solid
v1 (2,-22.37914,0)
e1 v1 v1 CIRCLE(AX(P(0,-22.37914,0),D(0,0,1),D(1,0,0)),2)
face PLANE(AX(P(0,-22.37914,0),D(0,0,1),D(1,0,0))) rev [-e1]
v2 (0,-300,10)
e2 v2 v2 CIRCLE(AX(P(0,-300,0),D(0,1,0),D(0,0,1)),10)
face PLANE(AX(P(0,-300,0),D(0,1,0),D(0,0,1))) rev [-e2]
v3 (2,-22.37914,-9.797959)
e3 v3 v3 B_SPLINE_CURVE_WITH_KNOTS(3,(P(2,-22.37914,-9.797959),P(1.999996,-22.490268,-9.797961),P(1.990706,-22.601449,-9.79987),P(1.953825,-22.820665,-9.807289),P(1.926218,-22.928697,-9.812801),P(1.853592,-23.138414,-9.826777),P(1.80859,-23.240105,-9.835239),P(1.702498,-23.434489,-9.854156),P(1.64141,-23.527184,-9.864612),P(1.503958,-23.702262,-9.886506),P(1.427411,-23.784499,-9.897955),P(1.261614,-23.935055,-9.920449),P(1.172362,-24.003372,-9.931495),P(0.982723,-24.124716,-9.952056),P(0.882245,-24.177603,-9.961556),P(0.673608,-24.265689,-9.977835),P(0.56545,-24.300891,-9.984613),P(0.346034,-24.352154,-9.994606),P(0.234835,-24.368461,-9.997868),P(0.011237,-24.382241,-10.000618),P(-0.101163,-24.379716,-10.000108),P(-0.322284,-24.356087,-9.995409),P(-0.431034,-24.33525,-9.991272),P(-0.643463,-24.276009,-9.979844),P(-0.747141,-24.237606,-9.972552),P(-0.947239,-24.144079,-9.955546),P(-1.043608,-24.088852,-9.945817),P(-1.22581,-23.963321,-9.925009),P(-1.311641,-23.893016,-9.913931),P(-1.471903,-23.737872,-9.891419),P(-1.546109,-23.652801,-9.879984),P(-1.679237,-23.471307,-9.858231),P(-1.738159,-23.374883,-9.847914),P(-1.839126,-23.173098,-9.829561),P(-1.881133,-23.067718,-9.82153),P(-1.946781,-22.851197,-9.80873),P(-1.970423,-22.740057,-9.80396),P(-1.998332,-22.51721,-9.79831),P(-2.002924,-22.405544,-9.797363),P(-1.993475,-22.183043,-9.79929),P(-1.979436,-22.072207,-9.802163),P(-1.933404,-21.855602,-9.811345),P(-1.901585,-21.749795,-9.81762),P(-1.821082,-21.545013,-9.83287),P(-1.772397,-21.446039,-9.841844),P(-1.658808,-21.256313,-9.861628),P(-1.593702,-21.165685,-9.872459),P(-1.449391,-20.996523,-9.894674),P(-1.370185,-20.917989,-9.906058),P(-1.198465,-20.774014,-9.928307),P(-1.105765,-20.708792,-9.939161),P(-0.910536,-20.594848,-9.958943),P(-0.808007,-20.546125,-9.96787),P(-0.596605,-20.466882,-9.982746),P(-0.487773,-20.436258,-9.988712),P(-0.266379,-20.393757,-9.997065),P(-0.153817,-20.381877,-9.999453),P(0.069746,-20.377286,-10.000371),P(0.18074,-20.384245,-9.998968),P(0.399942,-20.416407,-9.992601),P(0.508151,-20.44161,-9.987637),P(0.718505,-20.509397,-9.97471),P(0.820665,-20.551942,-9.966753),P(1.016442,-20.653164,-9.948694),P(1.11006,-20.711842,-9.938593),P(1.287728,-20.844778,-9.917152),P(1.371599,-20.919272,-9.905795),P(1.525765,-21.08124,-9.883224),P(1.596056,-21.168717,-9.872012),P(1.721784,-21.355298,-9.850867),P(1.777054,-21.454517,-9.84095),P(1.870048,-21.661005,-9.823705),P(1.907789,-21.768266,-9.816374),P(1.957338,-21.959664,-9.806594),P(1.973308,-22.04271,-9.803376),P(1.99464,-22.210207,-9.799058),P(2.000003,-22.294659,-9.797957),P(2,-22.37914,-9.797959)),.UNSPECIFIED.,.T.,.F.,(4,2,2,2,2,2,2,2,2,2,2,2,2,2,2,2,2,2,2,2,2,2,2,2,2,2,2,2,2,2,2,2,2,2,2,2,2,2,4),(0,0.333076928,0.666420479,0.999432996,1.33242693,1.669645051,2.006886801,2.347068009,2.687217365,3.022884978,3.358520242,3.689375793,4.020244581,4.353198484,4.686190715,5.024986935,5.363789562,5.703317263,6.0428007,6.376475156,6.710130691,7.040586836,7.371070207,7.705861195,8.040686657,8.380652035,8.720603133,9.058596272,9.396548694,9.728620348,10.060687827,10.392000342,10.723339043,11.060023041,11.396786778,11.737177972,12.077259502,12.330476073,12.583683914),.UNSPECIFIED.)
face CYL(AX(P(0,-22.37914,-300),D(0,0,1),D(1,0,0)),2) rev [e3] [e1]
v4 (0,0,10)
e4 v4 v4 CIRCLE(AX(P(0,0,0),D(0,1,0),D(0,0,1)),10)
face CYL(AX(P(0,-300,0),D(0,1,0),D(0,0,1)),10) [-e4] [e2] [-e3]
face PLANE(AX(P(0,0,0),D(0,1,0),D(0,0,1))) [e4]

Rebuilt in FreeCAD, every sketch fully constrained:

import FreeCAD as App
import Part
import Sketcher
from FreeCAD import Vector

doc = App.newDocument("Part")
params = doc.addObject("Spreadsheet::Sheet", "Params")
for row, (alias, value) in enumerate([
    ("sketch1_diameter", "20 mm"),
    ("pad1_length", "300 mm"),
    ("sketch2_diameter", "4 mm"),
    ("pocket1_length", "300 mm"),
], start=1):
    params.set(f"A{row}", alias)
    params.set(f"B{row}", "=" + value)
    params.setAlias(f"B{row}", alias)

body = doc.addObject("PartDesign::Body", "Body")

# Sketch on XZ plane
sketch1 = body.newObject("Sketcher::SketchObject", "Sketch")
sketch1.AttachmentSupport = (doc.getObject("XZ_Plane"), [""])
sketch1.MapMode = "FlatFace"
sketch1.addGeometry(Part.Circle(Vector(0, 0, 0), Vector(0, 0, 1), 10), False)
sketch1.addConstraint([
    Sketcher.Constraint("Coincident", 0, 3, -1, 1),
    Sketcher.Constraint("Diameter", 0, 20.0),
])
sketch1.setExpression("Constraints[1]", "Params.sketch1_diameter")
pad1 = body.newObject("PartDesign::Pad", "Pad")
pad1.Profile = sketch1
pad1.setExpression("Length", "Params.pad1_length")

# Sketch on XY plane
sketch2 = body.newObject("Sketcher::SketchObject", "Sketch001")
sketch2.AttachmentSupport = (doc.getObject("XY_Plane"), [""])
sketch2.MapMode = "FlatFace"
sketch2.addGeometry(Part.Circle(Vector(0, -22.4, 0), Vector(0, 0, 1), 2), False)
sketch2.addConstraint([
    Sketcher.Constraint("PointOnObject", 0, 3, -2),
    Sketcher.Constraint("Diameter", 0, 4.0),
    Sketcher.Constraint("DistanceY", 0, 3, -1, 1, 22.37914),
])
sketch2.setExpression("Constraints[1]", "Params.sketch2_diameter")
pocket1 = body.newObject("PartDesign::Pocket", "Pocket")
pocket1.Profile = sketch2
pocket1.setExpression("Length", "Params.pocket1_length")

doc.recompute()
